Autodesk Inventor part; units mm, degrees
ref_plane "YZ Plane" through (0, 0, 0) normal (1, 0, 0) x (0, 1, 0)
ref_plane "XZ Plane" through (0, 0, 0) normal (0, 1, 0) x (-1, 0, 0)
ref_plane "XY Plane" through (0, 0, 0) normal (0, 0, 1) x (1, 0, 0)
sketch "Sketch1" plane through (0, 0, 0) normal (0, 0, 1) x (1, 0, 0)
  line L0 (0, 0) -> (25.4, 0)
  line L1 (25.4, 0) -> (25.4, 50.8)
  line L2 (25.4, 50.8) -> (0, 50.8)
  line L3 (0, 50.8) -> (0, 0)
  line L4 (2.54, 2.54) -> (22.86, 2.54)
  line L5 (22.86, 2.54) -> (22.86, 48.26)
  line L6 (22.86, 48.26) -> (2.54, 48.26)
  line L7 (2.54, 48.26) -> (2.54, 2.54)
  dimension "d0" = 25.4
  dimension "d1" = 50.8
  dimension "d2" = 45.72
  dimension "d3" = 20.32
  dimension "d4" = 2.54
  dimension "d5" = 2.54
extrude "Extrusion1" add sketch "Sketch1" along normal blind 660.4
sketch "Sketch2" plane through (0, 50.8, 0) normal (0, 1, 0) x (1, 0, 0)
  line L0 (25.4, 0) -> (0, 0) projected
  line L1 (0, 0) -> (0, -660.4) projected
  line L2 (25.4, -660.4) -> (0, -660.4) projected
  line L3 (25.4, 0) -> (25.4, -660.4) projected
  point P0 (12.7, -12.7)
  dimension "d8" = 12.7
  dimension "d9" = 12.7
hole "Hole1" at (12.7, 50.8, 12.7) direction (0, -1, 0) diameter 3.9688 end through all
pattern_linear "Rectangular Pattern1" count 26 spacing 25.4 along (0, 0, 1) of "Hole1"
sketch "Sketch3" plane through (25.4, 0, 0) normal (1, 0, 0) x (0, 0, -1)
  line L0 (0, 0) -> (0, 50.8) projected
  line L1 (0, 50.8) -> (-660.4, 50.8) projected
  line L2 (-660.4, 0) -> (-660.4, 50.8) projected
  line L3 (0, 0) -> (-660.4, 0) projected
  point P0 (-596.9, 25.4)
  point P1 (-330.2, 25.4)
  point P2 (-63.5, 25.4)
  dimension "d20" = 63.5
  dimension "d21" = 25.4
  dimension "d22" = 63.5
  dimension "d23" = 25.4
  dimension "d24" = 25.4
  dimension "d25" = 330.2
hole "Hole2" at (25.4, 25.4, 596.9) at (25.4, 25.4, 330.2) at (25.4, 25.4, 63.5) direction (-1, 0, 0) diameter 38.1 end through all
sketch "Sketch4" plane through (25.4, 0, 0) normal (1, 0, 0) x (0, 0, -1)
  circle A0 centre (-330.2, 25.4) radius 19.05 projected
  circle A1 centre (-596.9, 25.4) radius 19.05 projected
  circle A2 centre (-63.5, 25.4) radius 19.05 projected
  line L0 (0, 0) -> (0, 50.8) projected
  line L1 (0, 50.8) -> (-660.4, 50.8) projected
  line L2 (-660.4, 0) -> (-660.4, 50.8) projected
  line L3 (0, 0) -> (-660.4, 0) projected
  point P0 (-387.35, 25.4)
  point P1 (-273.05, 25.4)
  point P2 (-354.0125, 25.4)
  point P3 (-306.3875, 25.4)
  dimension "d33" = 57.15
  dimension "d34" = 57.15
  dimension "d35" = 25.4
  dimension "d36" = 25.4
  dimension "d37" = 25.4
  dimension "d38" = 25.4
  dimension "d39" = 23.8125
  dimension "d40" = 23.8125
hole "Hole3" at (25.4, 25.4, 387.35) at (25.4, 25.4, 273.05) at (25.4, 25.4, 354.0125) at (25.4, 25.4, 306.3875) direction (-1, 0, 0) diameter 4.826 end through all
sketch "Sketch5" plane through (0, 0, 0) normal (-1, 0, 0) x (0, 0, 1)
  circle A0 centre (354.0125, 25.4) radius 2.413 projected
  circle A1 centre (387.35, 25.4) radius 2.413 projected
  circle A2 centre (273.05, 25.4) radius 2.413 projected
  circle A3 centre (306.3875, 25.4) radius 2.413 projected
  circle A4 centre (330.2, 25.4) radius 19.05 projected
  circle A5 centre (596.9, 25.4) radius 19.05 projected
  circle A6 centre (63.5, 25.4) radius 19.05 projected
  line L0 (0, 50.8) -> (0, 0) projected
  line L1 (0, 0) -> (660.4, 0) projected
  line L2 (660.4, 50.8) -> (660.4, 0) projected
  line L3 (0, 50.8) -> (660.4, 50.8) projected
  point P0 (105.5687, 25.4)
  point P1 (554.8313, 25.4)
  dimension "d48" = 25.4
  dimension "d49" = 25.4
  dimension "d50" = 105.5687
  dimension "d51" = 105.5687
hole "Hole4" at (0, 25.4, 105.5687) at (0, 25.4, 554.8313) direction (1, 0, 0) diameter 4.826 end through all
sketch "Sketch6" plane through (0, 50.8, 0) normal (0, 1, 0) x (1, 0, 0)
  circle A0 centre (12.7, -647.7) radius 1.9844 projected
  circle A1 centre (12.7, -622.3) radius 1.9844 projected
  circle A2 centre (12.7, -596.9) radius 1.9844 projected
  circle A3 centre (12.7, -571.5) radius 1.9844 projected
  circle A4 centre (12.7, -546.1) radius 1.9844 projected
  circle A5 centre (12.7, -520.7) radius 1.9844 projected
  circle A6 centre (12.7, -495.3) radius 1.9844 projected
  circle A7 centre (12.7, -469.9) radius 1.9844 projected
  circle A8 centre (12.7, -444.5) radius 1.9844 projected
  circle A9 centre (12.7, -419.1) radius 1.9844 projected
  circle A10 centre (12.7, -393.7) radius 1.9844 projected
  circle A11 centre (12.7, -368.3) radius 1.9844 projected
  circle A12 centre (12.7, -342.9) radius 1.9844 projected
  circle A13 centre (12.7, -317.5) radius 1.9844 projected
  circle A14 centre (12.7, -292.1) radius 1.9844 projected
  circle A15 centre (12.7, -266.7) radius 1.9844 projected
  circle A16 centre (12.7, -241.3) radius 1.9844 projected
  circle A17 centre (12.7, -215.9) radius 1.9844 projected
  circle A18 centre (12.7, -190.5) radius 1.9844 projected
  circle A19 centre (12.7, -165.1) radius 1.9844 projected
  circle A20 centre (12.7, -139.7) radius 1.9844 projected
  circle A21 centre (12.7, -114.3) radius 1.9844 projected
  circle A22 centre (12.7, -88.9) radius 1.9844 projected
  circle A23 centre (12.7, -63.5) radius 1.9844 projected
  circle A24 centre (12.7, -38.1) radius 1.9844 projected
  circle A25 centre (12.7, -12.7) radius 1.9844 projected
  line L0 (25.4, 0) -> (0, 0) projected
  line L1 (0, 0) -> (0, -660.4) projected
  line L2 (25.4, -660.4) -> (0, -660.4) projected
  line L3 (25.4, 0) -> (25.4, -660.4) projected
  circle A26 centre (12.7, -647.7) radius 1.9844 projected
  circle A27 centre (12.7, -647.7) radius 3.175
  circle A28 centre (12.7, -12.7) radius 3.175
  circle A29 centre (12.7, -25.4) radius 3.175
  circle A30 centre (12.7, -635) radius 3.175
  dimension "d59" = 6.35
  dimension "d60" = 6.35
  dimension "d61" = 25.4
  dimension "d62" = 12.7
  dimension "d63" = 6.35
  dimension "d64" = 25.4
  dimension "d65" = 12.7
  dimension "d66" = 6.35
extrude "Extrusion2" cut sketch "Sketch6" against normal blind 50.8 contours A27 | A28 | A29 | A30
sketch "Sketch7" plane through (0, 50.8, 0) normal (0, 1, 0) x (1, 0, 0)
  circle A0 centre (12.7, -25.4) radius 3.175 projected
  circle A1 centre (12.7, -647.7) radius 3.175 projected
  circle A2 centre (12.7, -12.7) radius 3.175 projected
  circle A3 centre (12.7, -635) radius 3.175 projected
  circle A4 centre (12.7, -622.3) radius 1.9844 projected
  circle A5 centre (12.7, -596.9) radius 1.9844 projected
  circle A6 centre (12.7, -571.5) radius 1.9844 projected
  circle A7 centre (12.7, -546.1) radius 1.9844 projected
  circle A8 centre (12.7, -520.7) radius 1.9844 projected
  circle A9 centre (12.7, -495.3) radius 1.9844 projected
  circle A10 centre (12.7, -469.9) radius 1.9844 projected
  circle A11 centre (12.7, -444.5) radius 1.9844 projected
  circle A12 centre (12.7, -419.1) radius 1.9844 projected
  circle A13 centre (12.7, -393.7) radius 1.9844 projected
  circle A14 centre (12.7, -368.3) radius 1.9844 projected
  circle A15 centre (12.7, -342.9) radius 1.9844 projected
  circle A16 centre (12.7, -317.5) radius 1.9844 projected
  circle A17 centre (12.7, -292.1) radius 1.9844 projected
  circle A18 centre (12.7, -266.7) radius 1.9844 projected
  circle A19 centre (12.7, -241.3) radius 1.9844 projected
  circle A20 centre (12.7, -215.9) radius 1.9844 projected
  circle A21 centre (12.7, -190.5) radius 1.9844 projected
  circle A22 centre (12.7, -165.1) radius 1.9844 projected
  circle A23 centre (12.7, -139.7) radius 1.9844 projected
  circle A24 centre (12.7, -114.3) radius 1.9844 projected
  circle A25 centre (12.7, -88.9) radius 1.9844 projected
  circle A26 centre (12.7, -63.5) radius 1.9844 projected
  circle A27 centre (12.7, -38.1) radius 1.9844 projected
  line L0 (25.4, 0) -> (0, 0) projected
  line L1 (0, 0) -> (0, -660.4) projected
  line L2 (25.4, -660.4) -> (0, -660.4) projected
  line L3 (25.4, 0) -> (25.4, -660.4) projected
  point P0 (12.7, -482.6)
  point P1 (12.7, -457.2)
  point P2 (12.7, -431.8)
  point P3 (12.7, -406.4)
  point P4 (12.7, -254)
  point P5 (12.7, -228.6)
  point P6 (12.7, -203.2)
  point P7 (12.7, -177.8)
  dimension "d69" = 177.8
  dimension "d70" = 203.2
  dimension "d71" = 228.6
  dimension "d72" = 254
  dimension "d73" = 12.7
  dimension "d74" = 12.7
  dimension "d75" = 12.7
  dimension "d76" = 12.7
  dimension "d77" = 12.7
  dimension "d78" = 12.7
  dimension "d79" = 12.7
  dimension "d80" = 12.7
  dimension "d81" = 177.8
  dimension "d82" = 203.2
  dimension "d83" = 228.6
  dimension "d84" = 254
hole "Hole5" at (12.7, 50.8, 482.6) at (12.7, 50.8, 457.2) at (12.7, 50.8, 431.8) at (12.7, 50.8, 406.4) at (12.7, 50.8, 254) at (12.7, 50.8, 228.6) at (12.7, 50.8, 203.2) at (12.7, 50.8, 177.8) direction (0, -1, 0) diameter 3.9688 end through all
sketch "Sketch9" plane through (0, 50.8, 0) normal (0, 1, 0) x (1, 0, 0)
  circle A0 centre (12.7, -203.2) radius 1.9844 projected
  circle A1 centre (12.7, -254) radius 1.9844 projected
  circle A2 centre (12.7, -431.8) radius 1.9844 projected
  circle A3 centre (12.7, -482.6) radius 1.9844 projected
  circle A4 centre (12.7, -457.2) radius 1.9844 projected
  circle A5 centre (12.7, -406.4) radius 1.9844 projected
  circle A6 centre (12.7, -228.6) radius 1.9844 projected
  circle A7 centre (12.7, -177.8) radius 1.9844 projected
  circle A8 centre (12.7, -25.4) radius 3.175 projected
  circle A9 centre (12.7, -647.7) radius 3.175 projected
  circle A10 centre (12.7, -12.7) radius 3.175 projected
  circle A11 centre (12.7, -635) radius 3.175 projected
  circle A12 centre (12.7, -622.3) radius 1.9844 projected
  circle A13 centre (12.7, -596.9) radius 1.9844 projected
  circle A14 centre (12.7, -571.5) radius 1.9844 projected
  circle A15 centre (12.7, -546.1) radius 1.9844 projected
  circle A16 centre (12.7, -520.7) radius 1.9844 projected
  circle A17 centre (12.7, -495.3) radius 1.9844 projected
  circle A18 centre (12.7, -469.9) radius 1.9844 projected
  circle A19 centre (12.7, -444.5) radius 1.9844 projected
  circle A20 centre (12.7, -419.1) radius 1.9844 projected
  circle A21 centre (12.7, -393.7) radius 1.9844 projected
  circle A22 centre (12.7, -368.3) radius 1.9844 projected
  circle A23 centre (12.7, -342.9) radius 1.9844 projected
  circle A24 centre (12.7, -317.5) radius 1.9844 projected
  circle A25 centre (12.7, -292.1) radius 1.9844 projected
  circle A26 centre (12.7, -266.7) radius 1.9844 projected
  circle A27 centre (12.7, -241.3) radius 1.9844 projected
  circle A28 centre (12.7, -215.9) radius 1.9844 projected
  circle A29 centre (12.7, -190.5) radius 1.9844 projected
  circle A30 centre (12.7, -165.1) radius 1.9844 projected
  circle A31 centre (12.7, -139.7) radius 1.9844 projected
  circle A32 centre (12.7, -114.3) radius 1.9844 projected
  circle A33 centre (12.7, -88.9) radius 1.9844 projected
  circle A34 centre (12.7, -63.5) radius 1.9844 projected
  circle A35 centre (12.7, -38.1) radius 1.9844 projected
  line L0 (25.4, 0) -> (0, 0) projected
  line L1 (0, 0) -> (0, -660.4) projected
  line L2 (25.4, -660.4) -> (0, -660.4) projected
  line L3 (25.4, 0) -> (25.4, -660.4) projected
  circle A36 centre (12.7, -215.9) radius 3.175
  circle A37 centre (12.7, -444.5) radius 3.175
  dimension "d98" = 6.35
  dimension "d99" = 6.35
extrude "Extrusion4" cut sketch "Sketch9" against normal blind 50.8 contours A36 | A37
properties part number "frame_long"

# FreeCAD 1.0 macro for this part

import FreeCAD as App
import Part
import Sketcher

V = App.Vector
Q = App.Units.Quantity

doc = App.newDocument("Part")
body = doc.addObject("PartDesign::Body", "Body")

sketch1 = body.newObject("Sketcher::SketchObject", "Sketch")
sketch1.AttachmentSupport = (doc.getObject("XY_Plane"), [""])
sketch1.MapMode = "FlatFace"
sketch1.addGeometry([
    Part.LineSegment(V(0, 51, 0), V(0, 0, 0)),
    Part.LineSegment(V(0, 0, 0), V(25, 0, 0)),
    Part.LineSegment(V(25, 0, 0), V(25, 51, 0)),
    Part.LineSegment(V(25, 51, 0), V(0, 51, 0)),
    Part.LineSegment(V(23, 3, 0), V(3, 3, 0)),
    Part.LineSegment(V(3, 3, 0), V(3, 48, 0)),
    Part.LineSegment(V(3, 48, 0), V(23, 48, 0)),
    Part.LineSegment(V(23, 48, 0), V(23, 3, 0)),
], False)
sketch1.addConstraint([
    Sketcher.Constraint("Coincident", 0, 2, 1, 1),
    Sketcher.Constraint("Coincident", 1, 2, 2, 1),
    Sketcher.Constraint("Coincident", 2, 2, 3, 1),
    Sketcher.Constraint("Coincident", 3, 2, 0, 1),
    Sketcher.Constraint("Coincident", 4, 2, 5, 1),
    Sketcher.Constraint("Coincident", 5, 2, 6, 1),
    Sketcher.Constraint("Coincident", 6, 2, 7, 1),
    Sketcher.Constraint("Coincident", 7, 2, 4, 1),
    Sketcher.Constraint("Vertical", 0),
    Sketcher.Constraint("Horizontal", 1),
    Sketcher.Constraint("Vertical", 2),
    Sketcher.Constraint("Horizontal", 3),
    Sketcher.Constraint("Horizontal", 4),
    Sketcher.Constraint("Vertical", 5),
    Sketcher.Constraint("Horizontal", 6),
    Sketcher.Constraint("Vertical", 7),
    Sketcher.Constraint("Coincident", 0, 2, -1, 1),
    Sketcher.Constraint("DistanceX", 1, 1, 1, 2, Q("1 in")),
    Sketcher.Constraint("DistanceY", 0, 2, 0, 1, Q("2 in")),
    Sketcher.Constraint("DistanceX", 4, 2, 4, 1, Q("0.8 in")),
    Sketcher.Constraint("DistanceY", 5, 1, 5, 2, Q("1.8 in")),
    Sketcher.Constraint("DistanceX", -1, 1, 4, 2, Q("0.1 in")),
    Sketcher.Constraint("DistanceY", -1, 1, 4, 2, Q("0.1 in")),
])
pad1 = body.newObject("PartDesign::Pad", "Pad")
pad1.Profile = sketch1
pad1.Length = Q("26 in")

sketch2 = body.newObject("Sketcher::SketchObject", "Sketch001")
sketch2.AttachmentSupport = (doc.getObject("XZ_Plane"), [""])
sketch2.MapMode = "FlatFace"
sketch2.AttachmentOffset = App.Placement(V(0, 0, -2 * 25.4), App.Rotation())
sketch2.addGeometry(Part.Circle(V(12.7, 12.7, 0), V(0, 0, 1), 2), False)
sketch2.addConstraint([
    Sketcher.Constraint("Diameter", 0, Q("0.156252 in")),
    Sketcher.Constraint("DistanceX", -1, 1, 0, 3, Q("0.5 in")),
    Sketcher.Constraint("DistanceY", -1, 1, 0, 3, Q("0.5 in")),
])
doc.recompute()
hole = body.newObject("PartDesign::Hole", "Hole")
hole.Profile = sketch2
hole.ThreadType = "None"
hole.Diameter = Q("0.156252 in")
hole.DepthType = "ThroughAll"
hole.Reversed = True
doc.recompute()

linearpattern = body.newObject("PartDesign::LinearPattern", "LinearPattern")
linearpattern.Originals = [hole]
linearpattern.Direction = (doc.getObject("Z_Axis"), [""])
linearpattern.Mode = "offset"
linearpattern.Offset = Q("1 in")
linearpattern.Occurrences = 26
body.Tip = linearpattern

sketch3 = body.newObject("Sketcher::SketchObject", "Sketch002")
sketch3.AttachmentSupport = (doc.getObject("YZ_Plane"), [""])
sketch3.MapMode = "FlatFace"
sketch3.AttachmentOffset = App.Placement(V(0, 0, 1 * 25.4), App.Rotation())
sketch3.addGeometry([
    Part.Circle(V(25, 597, 0), V(0, 0, 1), 19),
    Part.Circle(V(25, 330, 0), V(0, 0, 1), 19),
    Part.Circle(V(25, 64, 0), V(0, 0, 1), 19),
], False)
sketch3.addConstraint([
    Sketcher.Constraint("Equal", 0, 1),
    Sketcher.Constraint("Equal", 1, 2),
    Sketcher.Constraint("Vertical", 0, 3, 1, 3),
    Sketcher.Constraint("Vertical", 1, 3, 2, 3),
    Sketcher.Constraint("Diameter", 0, Q("1.5 in")),
    Sketcher.Constraint("DistanceX", -1, 1, 0, 3, Q("1 in")),
    Sketcher.Constraint("DistanceY", -1, 1, 1, 3, Q("13 in")),
    Sketcher.Constraint("DistanceY", 2, 3, 0, 3, Q("21 in")),
    Sketcher.Constraint("DistanceY", -1, 1, 0, 3, Q("23.5 in")),
])
doc.recompute()
hole2 = body.newObject("PartDesign::Hole", "Hole001")
hole2.Profile = sketch3
hole2.ThreadType = "None"
hole2.Diameter = Q("1.5 in")
hole2.DepthType = "ThroughAll"

sketch4 = body.newObject("Sketcher::SketchObject", "Sketch003")
sketch4.AttachmentSupport = (doc.getObject("YZ_Plane"), [""])
sketch4.MapMode = "FlatFace"
sketch4.AttachmentOffset = App.Placement(V(0, 0, 1 * 25.4), App.Rotation())
sketch4.addGeometry([
    Part.Circle(V(25.4, 387.4, 0), V(0, 0, 1), 2.4),
    Part.Circle(V(25.4, 273.1, 0), V(0, 0, 1), 2.4),
    Part.Circle(V(25.4, 354, 0), V(0, 0, 1), 2.4),
    Part.Circle(V(25.4, 306.4, 0), V(0, 0, 1), 2.4),
], False)
sketch4.addConstraint([
    Sketcher.Constraint("Equal", 0, 1),
    Sketcher.Constraint("Equal", 1, 2),
    Sketcher.Constraint("Equal", 2, 3),
    Sketcher.Constraint("Vertical", 0, 3, 1, 3),
    Sketcher.Constraint("Vertical", 1, 3, 2, 3),
    Sketcher.Constraint("Vertical", 2, 3, 3, 3),
    Sketcher.Constraint("Diameter", 0, Q("0.19 in")),
    Sketcher.Constraint("DistanceX", -1, 1, 0, 3, Q("1 in")),
    Sketcher.Constraint("DistanceY", 1, 3, 0, 3, Q("4.5 in")),
    Sketcher.Constraint("DistanceY", -1, 1, 0, 3, Q("15.25 in")),
    Sketcher.Constraint("DistanceY", -1, 1, 2, 3, Q("13.9375 in")),
    Sketcher.Constraint("DistanceY", -1, 1, 3, 3, Q("12.0625 in")),
])
doc.recompute()
hole3 = body.newObject("PartDesign::Hole", "Hole002")
hole3.Profile = sketch4
hole3.ThreadType = "None"
hole3.Diameter = Q("0.19 in")
hole3.DepthType = "ThroughAll"

sketch5 = body.newObject("Sketcher::SketchObject", "Sketch004")
sketch5.AttachmentSupport = (doc.getObject("YZ_Plane"), [""])
sketch5.MapMode = "FlatFace"
sketch5.addGeometry([
    Part.Circle(V(25.4, 105.6, 0), V(0, 0, 1), 2.4),
    Part.Circle(V(25.4, 554.8, 0), V(0, 0, 1), 2.4),
], False)
sketch5.addConstraint([
    Sketcher.Constraint("Equal", 0, 1),
    Sketcher.Constraint("Vertical", 0, 3, 1, 3),
    Sketcher.Constraint("Diameter", 0, Q("0.19 in")),
    Sketcher.Constraint("DistanceX", -1, 1, 0, 3, Q("1 in")),
    Sketcher.Constraint("DistanceY", -1, 1, 0, 3, Q("4.156248 in")),
    Sketcher.Constraint("DistanceY", -1, 1, 1, 3, Q("21.843752 in")),
])
doc.recompute()
hole4 = body.newObject("PartDesign::Hole", "Hole003")
hole4.Profile = sketch5
hole4.ThreadType = "None"
hole4.Diameter = Q("0.19 in")
hole4.DepthType = "ThroughAll"
hole4.Reversed = True

sketch6 = body.newObject("Sketcher::SketchObject", "Sketch005")
sketch6.AttachmentSupport = (doc.getObject("XZ_Plane"), [""])
sketch6.MapMode = "FlatFace"
sketch6.AttachmentOffset = App.Placement(V(0, 0, -2 * 25.4), App.Rotation())
sketch6.addGeometry([
    Part.Circle(V(12.7, 647.7, 0), V(0, 0, 1), 3.2),
    Part.Circle(V(12.7, 647.7, 0), V(0, 0, 1), 2),
    Part.Circle(V(12.7, 12.7, 0), V(0, 0, 1), 3.2),
    Part.Circle(V(12.7, 12.7, 0), V(0, 0, 1), 2),
    Part.Circle(V(12.7, 25.4, 0), V(0, 0, 1), 3.2),
    Part.Circle(V(12.7, 635, 0), V(0, 0, 1), 3.2),
], False)
sketch6.addConstraint([
    Sketcher.Constraint("Coincident", 1, 3, 0, 3),
    Sketcher.Constraint("Coincident", 3, 3, 2, 3),
    Sketcher.Constraint("Equal", 0, 2),
    Sketcher.Constraint("Equal", 1, 3),
    Sketcher.Constraint("Equal", 2, 4),
    Sketcher.Constraint("Equal", 4, 5),
    Sketcher.Constraint("Vertical", 1, 3, 2, 3),
    Sketcher.Constraint("Vertical", 3, 3, 4, 3),
    Sketcher.Constraint("Vertical", 4, 3, 5, 3),
    Sketcher.Constraint("Diameter", 0, Q("0.25 in")),
    Sketcher.Constraint("DistanceY", -1, 1, 4, 3, Q("1 in")),
    Sketcher.Constraint("DistanceX", -1, 1, 0, 3, Q("0.5 in")),
    Sketcher.Constraint("DistanceY", -1, 1, 2, 3, Q("0.5 in")),
    Sketcher.Constraint("DistanceY", 5, 3, 0, 3, Q("0.5 in")),
    Sketcher.Constraint("Diameter", 1, Q("0.156252 in")),
    Sketcher.Constraint("DistanceY", -1, 1, 5, 3, Q("25 in")),
])
pocket1 = body.newObject("PartDesign::Pocket", "Pocket")
pocket1.Profile = sketch6
pocket1.Length = Q("2 in")
pocket1.Reversed = True

sketch7 = body.newObject("Sketcher::SketchObject", "Sketch006")
sketch7.AttachmentSupport = (doc.getObject("XZ_Plane"), [""])
sketch7.MapMode = "FlatFace"
sketch7.AttachmentOffset = App.Placement(V(0, 0, -2 * 25.4), App.Rotation())
sketch7.addGeometry([
    Part.Circle(V(12.7, 482.6, 0), V(0, 0, 1), 2),
    Part.Circle(V(12.7, 457.2, 0), V(0, 0, 1), 2),
    Part.Circle(V(12.7, 431.8, 0), V(0, 0, 1), 2),
    Part.Circle(V(12.7, 406.4, 0), V(0, 0, 1), 2),
    Part.Circle(V(12.7, 254, 0), V(0, 0, 1), 2),
    Part.Circle(V(12.7, 228.6, 0), V(0, 0, 1), 2),
    Part.Circle(V(12.7, 203.2, 0), V(0, 0, 1), 2),
    Part.Circle(V(12.7, 177.8, 0), V(0, 0, 1), 2),
], False)
sketch7.addConstraint([
    Sketcher.Constraint("Equal", 0, 1),
    Sketcher.Constraint("Equal", 1, 2),
    Sketcher.Constraint("Equal", 2, 3),
    Sketcher.Constraint("Equal", 3, 4),
    Sketcher.Constraint("Equal", 4, 5),
    Sketcher.Constraint("Equal", 5, 6),
    Sketcher.Constraint("Equal", 6, 7),
    Sketcher.Constraint("Vertical", 0, 3, 1, 3),
    Sketcher.Constraint("Vertical", 1, 3, 2, 3),
    Sketcher.Constraint("Vertical", 2, 3, 3, 3),
    Sketcher.Constraint("Vertical", 3, 3, 4, 3),
    Sketcher.Constraint("Vertical", 4, 3, 5, 3),
    Sketcher.Constraint("Vertical", 5, 3, 6, 3),
    Sketcher.Constraint("Vertical", 6, 3, 7, 3),
    Sketcher.Constraint("Diameter", 0, Q("0.156252 in")),
    Sketcher.Constraint("DistanceY", -1, 1, 0, 3, Q("19 in")),
    Sketcher.Constraint("DistanceY", -1, 1, 1, 3, Q("18 in")),
    Sketcher.Constraint("DistanceY", -1, 1, 2, 3, Q("17 in")),
    Sketcher.Constraint("DistanceY", -1, 1, 3, 3, Q("16 in")),
    Sketcher.Constraint("DistanceY", -1, 1, 4, 3, Q("10 in")),
    Sketcher.Constraint("DistanceY", -1, 1, 5, 3, Q("9 in")),
    Sketcher.Constraint("DistanceY", -1, 1, 6, 3, Q("8 in")),
    Sketcher.Constraint("DistanceY", -1, 1, 7, 3, Q("7 in")),
    Sketcher.Constraint("DistanceX", -1, 1, 0, 3, Q("0.5 in")),
])
doc.recompute()
hole5 = body.newObject("PartDesign::Hole", "Hole004")
hole5.Profile = sketch7
hole5.ThreadType = "None"
hole5.Diameter = Q("0.156252 in")
hole5.DepthType = "ThroughAll"
hole5.Reversed = True

sketch8 = body.newObject("Sketcher::SketchObject", "Sketch007")
sketch8.AttachmentSupport = (doc.getObject("XZ_Plane"), [""])
sketch8.MapMode = "FlatFace"
sketch8.AttachmentOffset = App.Placement(V(0, 0, -2 * 25.4), App.Rotation())
sketch8.addGeometry([
    Part.Circle(V(12.7, 215.9, 0), V(0, 0, 1), 3.2),
    Part.Circle(V(12.7, 215.9, 0), V(0, 0, 1), 2),
    Part.Circle(V(12.7, 444.5, 0), V(0, 0, 1), 3.2),
    Part.Circle(V(12.7, 444.5, 0), V(0, 0, 1), 2),
], False)
sketch8.addConstraint([
    Sketcher.Constraint("Coincident", 1, 3, 0, 3),
    Sketcher.Constraint("Coincident", 3, 3, 2, 3),
    Sketcher.Constraint("Equal", 0, 2),
    Sketcher.Constraint("Equal", 1, 3),
    Sketcher.Constraint("Vertical", 1, 3, 2, 3),
    Sketcher.Constraint("Diameter", 0, Q("0.25 in")),
    Sketcher.Constraint("Diameter", 1, Q("0.156252 in")),
    Sketcher.Constraint("DistanceY", 0, 3, 2, 3, Q("9 in")),
    Sketcher.Constraint("DistanceX", -1, 1, 0, 3, Q("0.5 in")),
    Sketcher.Constraint("DistanceY", -1, 1, 0, 3, Q("8.5 in")),
])
pocket2 = body.newObject("PartDesign::Pocket", "Pocket001")
pocket2.Profile = sketch8
pocket2.Length = Q("2 in")
pocket2.Reversed = True

doc.recompute()
